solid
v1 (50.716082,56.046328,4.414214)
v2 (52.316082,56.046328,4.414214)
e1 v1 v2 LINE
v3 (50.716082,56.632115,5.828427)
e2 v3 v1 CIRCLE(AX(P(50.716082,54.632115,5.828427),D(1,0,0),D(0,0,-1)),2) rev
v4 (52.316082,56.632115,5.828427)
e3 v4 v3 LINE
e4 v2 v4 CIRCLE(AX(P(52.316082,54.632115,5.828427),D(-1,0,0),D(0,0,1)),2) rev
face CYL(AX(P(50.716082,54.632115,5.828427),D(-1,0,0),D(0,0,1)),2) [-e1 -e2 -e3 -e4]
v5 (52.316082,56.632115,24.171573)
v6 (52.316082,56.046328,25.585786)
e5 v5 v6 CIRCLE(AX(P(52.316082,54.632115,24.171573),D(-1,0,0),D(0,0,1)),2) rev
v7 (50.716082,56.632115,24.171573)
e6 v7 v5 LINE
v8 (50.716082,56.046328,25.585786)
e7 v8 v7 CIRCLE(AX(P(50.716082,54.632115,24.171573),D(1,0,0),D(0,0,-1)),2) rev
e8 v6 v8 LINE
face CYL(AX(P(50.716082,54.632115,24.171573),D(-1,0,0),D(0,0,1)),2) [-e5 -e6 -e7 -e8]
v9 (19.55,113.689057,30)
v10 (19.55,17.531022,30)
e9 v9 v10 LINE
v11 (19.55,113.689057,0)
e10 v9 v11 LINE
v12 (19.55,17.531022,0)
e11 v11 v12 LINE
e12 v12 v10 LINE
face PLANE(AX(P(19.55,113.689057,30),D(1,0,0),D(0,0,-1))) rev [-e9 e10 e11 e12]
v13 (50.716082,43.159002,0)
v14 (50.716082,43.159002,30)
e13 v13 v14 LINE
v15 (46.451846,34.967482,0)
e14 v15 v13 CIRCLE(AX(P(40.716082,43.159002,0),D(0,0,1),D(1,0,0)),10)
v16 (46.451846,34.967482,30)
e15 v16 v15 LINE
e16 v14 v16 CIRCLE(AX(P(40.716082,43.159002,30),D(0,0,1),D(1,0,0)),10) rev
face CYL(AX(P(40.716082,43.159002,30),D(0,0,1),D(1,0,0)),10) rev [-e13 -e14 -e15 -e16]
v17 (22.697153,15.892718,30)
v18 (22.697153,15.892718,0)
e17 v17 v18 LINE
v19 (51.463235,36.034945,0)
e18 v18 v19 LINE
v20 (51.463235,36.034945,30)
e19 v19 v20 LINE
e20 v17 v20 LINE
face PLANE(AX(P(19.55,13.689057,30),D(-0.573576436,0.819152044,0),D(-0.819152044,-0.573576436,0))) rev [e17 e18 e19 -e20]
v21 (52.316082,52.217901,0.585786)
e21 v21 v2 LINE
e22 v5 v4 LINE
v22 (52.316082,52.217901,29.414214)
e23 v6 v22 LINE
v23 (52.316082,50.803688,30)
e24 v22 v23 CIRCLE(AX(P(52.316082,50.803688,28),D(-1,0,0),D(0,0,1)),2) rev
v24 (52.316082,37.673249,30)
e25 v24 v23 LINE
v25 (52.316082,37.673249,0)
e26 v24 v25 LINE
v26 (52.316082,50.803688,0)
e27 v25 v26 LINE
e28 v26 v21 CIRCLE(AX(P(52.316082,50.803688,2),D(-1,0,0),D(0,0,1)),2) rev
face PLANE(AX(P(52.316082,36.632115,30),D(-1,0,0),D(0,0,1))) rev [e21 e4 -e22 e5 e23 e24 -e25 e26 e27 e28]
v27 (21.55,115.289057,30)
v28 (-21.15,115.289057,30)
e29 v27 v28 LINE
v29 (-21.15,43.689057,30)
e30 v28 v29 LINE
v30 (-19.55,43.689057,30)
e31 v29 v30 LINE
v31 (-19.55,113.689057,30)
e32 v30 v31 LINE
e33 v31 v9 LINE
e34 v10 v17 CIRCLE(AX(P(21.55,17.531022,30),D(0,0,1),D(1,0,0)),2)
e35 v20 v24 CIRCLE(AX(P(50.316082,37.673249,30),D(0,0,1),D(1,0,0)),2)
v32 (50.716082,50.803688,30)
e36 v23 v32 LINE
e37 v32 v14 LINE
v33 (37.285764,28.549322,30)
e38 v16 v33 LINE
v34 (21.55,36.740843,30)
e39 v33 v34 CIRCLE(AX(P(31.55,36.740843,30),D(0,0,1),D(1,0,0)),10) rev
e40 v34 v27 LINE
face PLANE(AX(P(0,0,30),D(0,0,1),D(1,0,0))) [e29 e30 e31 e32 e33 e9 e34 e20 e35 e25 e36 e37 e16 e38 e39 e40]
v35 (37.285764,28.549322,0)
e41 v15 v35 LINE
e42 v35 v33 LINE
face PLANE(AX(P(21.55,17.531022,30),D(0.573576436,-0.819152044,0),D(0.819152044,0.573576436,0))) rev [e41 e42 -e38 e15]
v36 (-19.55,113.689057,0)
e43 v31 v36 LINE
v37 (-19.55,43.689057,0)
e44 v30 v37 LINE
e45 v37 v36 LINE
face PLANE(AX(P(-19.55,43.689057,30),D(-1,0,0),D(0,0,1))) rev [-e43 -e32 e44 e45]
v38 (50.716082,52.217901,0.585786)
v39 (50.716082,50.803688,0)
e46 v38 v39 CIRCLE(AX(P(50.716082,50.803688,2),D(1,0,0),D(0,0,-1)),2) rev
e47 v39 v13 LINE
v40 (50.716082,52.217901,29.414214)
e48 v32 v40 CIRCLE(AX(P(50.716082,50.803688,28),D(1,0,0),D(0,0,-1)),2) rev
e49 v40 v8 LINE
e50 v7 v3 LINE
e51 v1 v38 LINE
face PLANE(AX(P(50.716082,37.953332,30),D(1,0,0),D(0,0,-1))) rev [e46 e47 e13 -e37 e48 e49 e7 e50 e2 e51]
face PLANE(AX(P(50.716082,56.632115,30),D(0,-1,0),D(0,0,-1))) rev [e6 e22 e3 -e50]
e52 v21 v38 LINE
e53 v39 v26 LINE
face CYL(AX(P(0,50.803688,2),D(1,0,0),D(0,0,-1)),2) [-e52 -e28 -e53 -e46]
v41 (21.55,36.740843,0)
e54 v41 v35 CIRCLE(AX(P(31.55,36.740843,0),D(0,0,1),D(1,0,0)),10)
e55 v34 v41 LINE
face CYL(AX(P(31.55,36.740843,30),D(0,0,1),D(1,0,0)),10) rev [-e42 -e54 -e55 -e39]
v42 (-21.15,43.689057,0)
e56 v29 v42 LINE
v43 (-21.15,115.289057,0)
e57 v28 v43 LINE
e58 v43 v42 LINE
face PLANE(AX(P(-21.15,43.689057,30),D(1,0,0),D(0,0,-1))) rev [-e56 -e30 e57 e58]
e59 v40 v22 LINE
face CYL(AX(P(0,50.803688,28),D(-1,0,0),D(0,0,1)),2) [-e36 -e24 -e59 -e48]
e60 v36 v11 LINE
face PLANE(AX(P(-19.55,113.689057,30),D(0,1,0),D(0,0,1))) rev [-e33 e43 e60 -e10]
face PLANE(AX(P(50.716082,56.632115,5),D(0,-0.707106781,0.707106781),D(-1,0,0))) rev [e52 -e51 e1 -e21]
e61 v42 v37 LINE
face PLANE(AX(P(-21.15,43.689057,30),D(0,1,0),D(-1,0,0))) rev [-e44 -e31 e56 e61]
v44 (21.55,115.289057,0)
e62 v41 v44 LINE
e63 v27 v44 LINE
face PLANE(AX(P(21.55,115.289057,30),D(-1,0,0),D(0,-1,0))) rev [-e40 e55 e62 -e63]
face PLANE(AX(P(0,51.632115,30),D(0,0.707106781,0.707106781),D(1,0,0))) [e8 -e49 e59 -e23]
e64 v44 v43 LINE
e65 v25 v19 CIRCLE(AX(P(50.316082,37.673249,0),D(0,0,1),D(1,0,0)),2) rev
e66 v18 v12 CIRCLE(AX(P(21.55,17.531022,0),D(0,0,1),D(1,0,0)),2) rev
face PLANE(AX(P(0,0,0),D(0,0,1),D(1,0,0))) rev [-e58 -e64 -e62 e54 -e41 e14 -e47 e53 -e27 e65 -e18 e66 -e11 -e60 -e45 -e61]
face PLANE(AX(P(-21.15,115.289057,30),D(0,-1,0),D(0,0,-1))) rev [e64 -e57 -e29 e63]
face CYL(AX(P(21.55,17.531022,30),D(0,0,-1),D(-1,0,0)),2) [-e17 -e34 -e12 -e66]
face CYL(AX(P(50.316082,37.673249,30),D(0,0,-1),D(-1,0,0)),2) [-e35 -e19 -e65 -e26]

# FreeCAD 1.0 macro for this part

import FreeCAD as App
import Part
import Sketcher
Q = App.Units.Quantity


def edges_at(feature, points):
    """Names of the edges that pass closest to the given points."""
    edges = feature.Shape.Edges
    near = lambda p: min(range(len(edges)), key=lambda i: edges[i].distToShape(Part.Vertex(*p))[0])
    return sorted({f"Edge{near(p) + 1}" for p in points})


def add_polygon(sketch, points):
    """Adds a closed chain of lines whose ends are joined by coincident constraints."""
    first, n = sketch.GeometryCount, len(points)
    for a, b in zip(points, points[1:] + points[:1]):
        sketch.addGeometry(Part.LineSegment(App.Vector(*a, 0), App.Vector(*b, 0)), False)
    for i in range(n):
        sketch.addConstraint(Sketcher.Constraint("Coincident", first + i, 2, first + (i + 1) % n, 1))

doc = App.newDocument("Part")
body = doc.addObject("PartDesign::Body", "Body")

sketch1 = body.newObject("Sketcher::SketchObject", "Sketch")
sketch1.AttachmentSupport = (doc.getObject("XY_Plane"), [""])
sketch1.MapMode = "FlatFace"
add_polygon(sketch1, [(-19.6, 43.7), (-19.6, 113.7), (19.6, 113.7), (19.6, 13.7), (52.3, 36.6), (52.3, 56.6), (50.7, 56.6), (50.7, 38), (21.6, 17.5), (21.6, 115.3), (-21.1, 115.3), (-21.1, 43.7)])
sketch1.addConstraint([
    Sketcher.Constraint("Vertical", 0),
    Sketcher.Constraint("Horizontal", 1),
    Sketcher.Constraint("Vertical", 2),
    Sketcher.Constraint("Vertical", 4),
    Sketcher.Constraint("Horizontal", 5),
    Sketcher.Constraint("Vertical", 6),
    Sketcher.Constraint("Vertical", 8),
    Sketcher.Constraint("Horizontal", 9),
    Sketcher.Constraint("Vertical", 10),
    Sketcher.Constraint("Horizontal", 11),
    Sketcher.Constraint("Parallel", 3, 7),
    Sketcher.Constraint("Equal", 5, 11),
    Sketcher.Constraint("DistanceY", 0, 1, 0, 2, 70.0),
    Sketcher.Constraint("DistanceY", 2, 2, 2, 1, 100.0),
    Sketcher.Constraint("DistanceY", 4, 1, 4, 2, 20.0),
    Sketcher.Constraint("Angle", 3, Q("35 deg")),
    Sketcher.Constraint("Distance", 3, 40.0),
    Sketcher.Constraint("DistanceX", 1, 1, 1, 2, 39.1),
    Sketcher.Constraint("DistanceX", 5, 2, 5, 1, 1.6),
    Sketcher.Constraint("DistanceX", 9, 2, 9, 1, 42.7),
    Sketcher.Constraint("DistanceY", 10, 2, 10, 1, 71.6),
    Sketcher.Constraint("DistanceX", 0, 2, -1, 1, 19.55),
    Sketcher.Constraint("DistanceY", 6, 2, 6, 1, 18.678783),
    Sketcher.Constraint("DistanceY", -1, 1, 6, 2, 37.953332),
])
pad1 = body.newObject("PartDesign::Pad", "Pad")
pad1.Profile = sketch1
pad1.Length = 30
doc.recompute()

fillet = body.newObject("PartDesign::Fillet", "Fillet")
fillet.Base = (pad1, edges_at(pad1, [(21.55, 17.531, 15), (50.716, 37.953, 15)]))
fillet.Radius = 10
doc.recompute()

chamfer = body.newObject("PartDesign::Chamfer", "Chamfer")
chamfer.Base = (fillet, edges_at(fillet, [(51.516, 56.632, 0), (51.516, 56.632, 30)]))
chamfer.Size = 5
doc.recompute()

fillet2 = body.newObject("PartDesign::Fillet", "Fillet001")
fillet2.Base = (chamfer, edges_at(chamfer, [
    (52.316, 36.632, 15),
    (19.55, 13.689, 15),
    (51.516, 56.632, 25),
    (51.516, 56.632, 5),
    (51.516, 51.632, 0),
    (51.516, 51.632, 30),
]))
fillet2.Radius = 2

doc.recompute()
